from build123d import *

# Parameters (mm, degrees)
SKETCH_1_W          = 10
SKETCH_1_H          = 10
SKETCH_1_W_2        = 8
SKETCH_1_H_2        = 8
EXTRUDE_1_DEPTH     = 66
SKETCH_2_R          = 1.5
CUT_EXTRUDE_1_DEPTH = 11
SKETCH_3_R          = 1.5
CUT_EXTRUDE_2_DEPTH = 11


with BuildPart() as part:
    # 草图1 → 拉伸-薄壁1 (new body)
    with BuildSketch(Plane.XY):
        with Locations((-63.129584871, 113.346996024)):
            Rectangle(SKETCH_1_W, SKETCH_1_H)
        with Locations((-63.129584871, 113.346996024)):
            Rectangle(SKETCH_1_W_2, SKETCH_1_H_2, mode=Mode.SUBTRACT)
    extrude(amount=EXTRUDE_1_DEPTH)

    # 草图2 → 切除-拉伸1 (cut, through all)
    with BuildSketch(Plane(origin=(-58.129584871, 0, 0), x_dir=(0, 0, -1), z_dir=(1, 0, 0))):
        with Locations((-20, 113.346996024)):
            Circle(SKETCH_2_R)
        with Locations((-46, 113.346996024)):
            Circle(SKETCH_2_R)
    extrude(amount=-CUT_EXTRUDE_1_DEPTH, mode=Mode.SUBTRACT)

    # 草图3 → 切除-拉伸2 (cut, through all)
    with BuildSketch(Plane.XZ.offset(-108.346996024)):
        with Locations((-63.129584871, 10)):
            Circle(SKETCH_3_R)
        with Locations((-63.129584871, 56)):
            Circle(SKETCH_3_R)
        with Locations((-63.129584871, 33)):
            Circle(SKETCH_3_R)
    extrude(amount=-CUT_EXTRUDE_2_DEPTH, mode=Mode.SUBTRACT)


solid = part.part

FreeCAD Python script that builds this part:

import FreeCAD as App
import Part
import Sketcher
from FreeCAD import Vector


def add_polygon(sketch, points):
    """Adds a closed chain of lines whose ends are joined by coincident constraints."""
    first, n = sketch.GeometryCount, len(points)
    for a, b in zip(points, points[1:] + points[:1]):
        sketch.addGeometry(Part.LineSegment(App.Vector(*a, 0), App.Vector(*b, 0)), False)
    for i in range(n):
        sketch.addConstraint(Sketcher.Constraint("Coincident", first + i, 2, first + (i + 1) % n, 1))

doc = App.newDocument("Part")
body = doc.addObject("PartDesign::Body", "Body")

# Sketch on XY plane
sketch1 = body.newObject("Sketcher::SketchObject", "Sketch")
sketch1.AttachmentSupport = (doc.getObject("XY_Plane"), [""])
sketch1.MapMode = "FlatFace"
add_polygon(sketch1, [(-68, 118), (-68, 108), (-58, 108), (-58, 118)])  # lines 0-3
add_polygon(sketch1, [(-59, 109), (-67, 109), (-67, 117), (-59, 117)])  # lines 4-7
sketch1.addConstraint(Sketcher.Constraint("Vertical", 0))
sketch1.addConstraint(Sketcher.Constraint("Horizontal", 1))
sketch1.addConstraint(Sketcher.Constraint("Vertical", 2))
sketch1.addConstraint(Sketcher.Constraint("Horizontal", 3))
sketch1.addConstraint(Sketcher.Constraint("Horizontal", 4))
sketch1.addConstraint(Sketcher.Constraint("Vertical", 5))
sketch1.addConstraint(Sketcher.Constraint("Horizontal", 6))
sketch1.addConstraint(Sketcher.Constraint("Vertical", 7))
sketch1.addConstraint(Sketcher.Constraint("Equal", 3, 0))
sketch1.addConstraint(Sketcher.Constraint("Equal", 6, 5))
sketch1.addConstraint(Sketcher.Constraint("DistanceX", 1, 1, 1, 2, 10.0))
sketch1.addConstraint(Sketcher.Constraint("DistanceX", 4, 2, 4, 1, 8.0))
sketch1.addConstraint(Sketcher.Constraint("DistanceX", 0, 2, 4, 2, 1.0))
sketch1.addConstraint(Sketcher.Constraint("DistanceY", 0, 2, 4, 2, 1.0))
sketch1.addConstraint(Sketcher.Constraint("DistanceX", 0, 2, -1, 1, 68.129585))
sketch1.addConstraint(Sketcher.Constraint("DistanceY", -1, 1, 0, 2, 108.346996))
pad1 = body.newObject("PartDesign::Pad", "Pad")
pad1.Profile = sketch1
pad1.Length = 66

# Sketch on YZ plane
sketch2 = body.newObject("Sketcher::SketchObject", "Sketch001")
sketch2.AttachmentSupport = (doc.getObject("YZ_Plane"), [""])
sketch2.MapMode = "FlatFace"
sketch2.AttachmentOffset = App.Placement(Vector(0, 0, -58.129585), App.Rotation())
sketch2.addGeometry(Part.Circle(Vector(113.3, 20, 0), Vector(0, 0, 1), 1.5), False)
sketch2.addGeometry(Part.Circle(Vector(113.3, 46, 0), Vector(0, 0, 1), 1.5), False)
sketch2.addConstraint(Sketcher.Constraint("Equal", 0, 1))
sketch2.addConstraint(Sketcher.Constraint("Vertical", 0, 3, 1, 3))
sketch2.addConstraint(Sketcher.Constraint("Diameter", 0, 3.0))
sketch2.addConstraint(Sketcher.Constraint("DistanceY", -1, 1, 0, 3, 20.0))
sketch2.addConstraint(Sketcher.Constraint("DistanceY", -1, 1, 1, 3, 46.0))
sketch2.addConstraint(Sketcher.Constraint("DistanceX", -1, 1, 0, 3, 113.346996))
pocket1 = body.newObject("PartDesign::Pocket", "Pocket")
pocket1.Profile = sketch2
pocket1.Type = "ThroughAll"

# Sketch on XZ plane
sketch3 = body.newObject("Sketcher::SketchObject", "Sketch002")
sketch3.AttachmentSupport = (doc.getObject("XZ_Plane"), [""])
sketch3.MapMode = "FlatFace"
sketch3.AttachmentOffset = App.Placement(Vector(0, 0, -108.346996), App.Rotation())
sketch3.addGeometry(Part.Circle(Vector(-63.1, 10, 0), Vector(0, 0, 1), 1.5), False)
sketch3.addGeometry(Part.Circle(Vector(-63.1, 56, 0), Vector(0, 0, 1), 1.5), False)
sketch3.addGeometry(Part.Circle(Vector(-63.1, 33, 0), Vector(0, 0, 1), 1.5), False)
sketch3.addConstraint(Sketcher.Constraint("Equal", 0, 1))
sketch3.addConstraint(Sketcher.Constraint("Equal", 1, 2))
sketch3.addConstraint(Sketcher.Constraint("Vertical", 0, 3, 1, 3))
sketch3.addConstraint(Sketcher.Constraint("Vertical", 1, 3, 2, 3))
sketch3.addConstraint(Sketcher.Constraint("Diameter", 0, 3.0))
sketch3.addConstraint(Sketcher.Constraint("DistanceY", -1, 1, 0, 3, 10.0))
sketch3.addConstraint(Sketcher.Constraint("DistanceY", -1, 1, 1, 3, 56.0))
sketch3.addConstraint(Sketcher.Constraint("DistanceY", -1, 1, 2, 3, 33.0))
sketch3.addConstraint(Sketcher.Constraint("DistanceX", 0, 3, -1, 1, 63.129585))
pocket2 = body.newObject("PartDesign::Pocket", "Pocket001")
pocket2.Profile = sketch3
pocket2.Type = "ThroughAll"

doc.recompute()
